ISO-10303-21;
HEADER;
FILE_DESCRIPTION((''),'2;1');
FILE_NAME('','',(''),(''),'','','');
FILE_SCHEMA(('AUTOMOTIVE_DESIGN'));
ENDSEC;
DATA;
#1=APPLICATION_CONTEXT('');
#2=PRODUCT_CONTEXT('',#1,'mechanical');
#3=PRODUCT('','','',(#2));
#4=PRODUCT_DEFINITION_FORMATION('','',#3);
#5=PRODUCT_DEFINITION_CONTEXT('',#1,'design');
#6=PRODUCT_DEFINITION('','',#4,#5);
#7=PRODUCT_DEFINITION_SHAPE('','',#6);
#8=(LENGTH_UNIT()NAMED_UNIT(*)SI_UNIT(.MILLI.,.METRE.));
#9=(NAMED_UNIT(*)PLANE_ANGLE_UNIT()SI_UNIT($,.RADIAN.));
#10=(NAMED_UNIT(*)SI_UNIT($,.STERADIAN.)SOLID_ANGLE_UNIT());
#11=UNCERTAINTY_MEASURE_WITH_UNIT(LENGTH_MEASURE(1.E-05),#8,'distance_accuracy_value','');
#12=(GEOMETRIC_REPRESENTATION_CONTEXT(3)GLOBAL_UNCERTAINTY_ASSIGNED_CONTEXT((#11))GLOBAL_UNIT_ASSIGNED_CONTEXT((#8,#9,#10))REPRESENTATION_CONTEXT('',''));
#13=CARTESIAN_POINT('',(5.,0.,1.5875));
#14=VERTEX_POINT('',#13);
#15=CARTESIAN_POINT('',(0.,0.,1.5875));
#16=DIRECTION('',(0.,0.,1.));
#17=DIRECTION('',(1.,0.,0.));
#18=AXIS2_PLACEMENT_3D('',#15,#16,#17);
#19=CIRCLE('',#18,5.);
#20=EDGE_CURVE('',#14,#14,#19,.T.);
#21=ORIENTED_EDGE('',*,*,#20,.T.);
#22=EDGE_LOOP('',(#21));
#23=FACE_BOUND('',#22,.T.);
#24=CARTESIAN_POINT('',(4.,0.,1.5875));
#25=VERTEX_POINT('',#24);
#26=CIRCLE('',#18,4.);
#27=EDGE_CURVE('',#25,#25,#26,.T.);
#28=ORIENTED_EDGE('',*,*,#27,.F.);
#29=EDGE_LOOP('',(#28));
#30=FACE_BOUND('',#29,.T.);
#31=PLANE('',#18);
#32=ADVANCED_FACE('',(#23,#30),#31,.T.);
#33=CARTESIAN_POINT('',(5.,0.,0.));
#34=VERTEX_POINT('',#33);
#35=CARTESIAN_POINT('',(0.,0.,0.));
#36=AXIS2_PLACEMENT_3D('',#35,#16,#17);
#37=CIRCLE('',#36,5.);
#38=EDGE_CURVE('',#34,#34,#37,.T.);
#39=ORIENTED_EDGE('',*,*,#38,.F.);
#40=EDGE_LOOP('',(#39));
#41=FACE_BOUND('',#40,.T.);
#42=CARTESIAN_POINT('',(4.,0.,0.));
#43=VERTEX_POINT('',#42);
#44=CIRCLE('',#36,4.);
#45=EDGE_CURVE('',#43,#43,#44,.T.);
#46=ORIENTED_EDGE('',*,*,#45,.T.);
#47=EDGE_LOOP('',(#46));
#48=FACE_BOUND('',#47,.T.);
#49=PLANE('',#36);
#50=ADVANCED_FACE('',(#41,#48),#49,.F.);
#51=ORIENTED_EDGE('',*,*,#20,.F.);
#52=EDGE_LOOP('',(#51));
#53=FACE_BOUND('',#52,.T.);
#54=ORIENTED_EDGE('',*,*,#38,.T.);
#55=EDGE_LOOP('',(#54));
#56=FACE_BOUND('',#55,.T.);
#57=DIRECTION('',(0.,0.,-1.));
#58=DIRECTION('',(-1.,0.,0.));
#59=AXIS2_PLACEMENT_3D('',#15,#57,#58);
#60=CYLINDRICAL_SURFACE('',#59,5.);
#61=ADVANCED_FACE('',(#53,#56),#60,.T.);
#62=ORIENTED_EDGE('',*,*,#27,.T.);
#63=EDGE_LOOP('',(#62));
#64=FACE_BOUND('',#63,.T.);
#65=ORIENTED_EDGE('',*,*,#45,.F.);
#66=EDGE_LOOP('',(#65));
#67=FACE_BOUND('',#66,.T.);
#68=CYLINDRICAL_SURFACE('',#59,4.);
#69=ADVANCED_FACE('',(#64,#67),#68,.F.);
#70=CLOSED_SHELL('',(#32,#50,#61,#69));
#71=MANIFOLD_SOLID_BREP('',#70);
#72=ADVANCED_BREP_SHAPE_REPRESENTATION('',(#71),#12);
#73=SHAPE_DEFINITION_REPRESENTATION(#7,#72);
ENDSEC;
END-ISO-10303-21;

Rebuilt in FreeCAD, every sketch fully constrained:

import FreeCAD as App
import Part
import Sketcher

V = App.Vector

doc = App.newDocument("Part")
body = doc.addObject("PartDesign::Body", "Body")

sketch1 = doc.addObject("Sketcher::SketchObject", "Sketch")
body.addObject(sketch1)
sketch1.AttachmentSupport = (doc.XY_Plane, [""])
sketch1.MapMode = "FlatFace"
sketch1.addGeometry(Part.Circle(V(0, 0, 0), V(0, 0, 1), 5), False)
sketch1.addGeometry(Part.Circle(V(0, 0, 0), V(0, 0, 1), 4), False)
sketch1.addConstraint(Sketcher.Constraint("Coincident", 0, 3, -1, 1))
sketch1.addConstraint(Sketcher.Constraint("Coincident", 1, 3, -1, 1))
sketch1.addConstraint(Sketcher.Constraint("Diameter", 0, 10.0))
sketch1.addConstraint(Sketcher.Constraint("Diameter", 1, 8.0))
pad1 = doc.addObject("PartDesign::Pad", "Pad")
body.addObject(pad1)
pad1.Profile = sketch1
pad1.Length = 1.5875

doc.recompute()
